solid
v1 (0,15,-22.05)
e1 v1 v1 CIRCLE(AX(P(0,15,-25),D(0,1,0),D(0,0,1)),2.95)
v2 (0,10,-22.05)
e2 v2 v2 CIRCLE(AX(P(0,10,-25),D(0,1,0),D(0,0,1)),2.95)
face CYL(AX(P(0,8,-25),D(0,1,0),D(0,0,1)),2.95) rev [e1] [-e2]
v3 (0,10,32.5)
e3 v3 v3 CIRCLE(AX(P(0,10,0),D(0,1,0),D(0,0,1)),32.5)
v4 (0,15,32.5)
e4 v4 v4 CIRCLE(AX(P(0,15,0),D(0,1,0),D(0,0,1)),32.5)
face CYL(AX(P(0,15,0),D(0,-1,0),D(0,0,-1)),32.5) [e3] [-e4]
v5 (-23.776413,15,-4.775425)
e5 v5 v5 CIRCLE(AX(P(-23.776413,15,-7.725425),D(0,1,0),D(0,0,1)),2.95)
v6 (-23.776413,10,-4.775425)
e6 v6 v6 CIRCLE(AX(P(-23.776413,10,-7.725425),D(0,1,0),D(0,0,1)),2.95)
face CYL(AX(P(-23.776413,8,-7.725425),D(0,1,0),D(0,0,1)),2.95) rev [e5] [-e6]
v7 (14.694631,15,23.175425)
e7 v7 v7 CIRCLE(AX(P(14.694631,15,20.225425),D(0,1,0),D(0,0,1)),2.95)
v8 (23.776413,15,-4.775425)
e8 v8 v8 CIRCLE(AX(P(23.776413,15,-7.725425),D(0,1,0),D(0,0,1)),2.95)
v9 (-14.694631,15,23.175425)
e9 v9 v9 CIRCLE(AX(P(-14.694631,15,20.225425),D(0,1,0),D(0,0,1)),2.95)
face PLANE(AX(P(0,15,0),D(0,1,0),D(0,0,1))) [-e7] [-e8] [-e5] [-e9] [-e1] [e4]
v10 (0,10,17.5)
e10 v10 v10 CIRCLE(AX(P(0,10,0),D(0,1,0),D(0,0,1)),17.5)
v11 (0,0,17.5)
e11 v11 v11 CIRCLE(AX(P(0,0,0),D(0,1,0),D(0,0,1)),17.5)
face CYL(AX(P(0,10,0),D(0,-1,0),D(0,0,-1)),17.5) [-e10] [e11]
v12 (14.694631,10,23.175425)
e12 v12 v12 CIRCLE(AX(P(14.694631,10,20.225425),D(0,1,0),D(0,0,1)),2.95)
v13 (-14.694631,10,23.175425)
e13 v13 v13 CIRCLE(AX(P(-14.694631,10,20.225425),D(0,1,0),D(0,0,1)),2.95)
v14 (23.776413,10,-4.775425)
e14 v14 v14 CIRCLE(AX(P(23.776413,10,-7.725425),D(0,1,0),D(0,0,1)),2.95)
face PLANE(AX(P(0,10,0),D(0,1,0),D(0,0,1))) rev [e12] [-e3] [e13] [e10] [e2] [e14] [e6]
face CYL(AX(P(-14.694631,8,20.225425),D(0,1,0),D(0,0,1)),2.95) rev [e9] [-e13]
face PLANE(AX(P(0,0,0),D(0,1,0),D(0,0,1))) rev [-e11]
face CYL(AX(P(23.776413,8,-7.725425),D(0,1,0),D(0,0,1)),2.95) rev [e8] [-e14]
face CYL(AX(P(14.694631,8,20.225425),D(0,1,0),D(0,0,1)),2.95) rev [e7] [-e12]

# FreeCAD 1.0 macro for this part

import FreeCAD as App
import Part
import Sketcher

V = App.Vector

doc = App.newDocument("Part")
body = doc.addObject("PartDesign::Body", "Body")

# Sketch on XZ plane
sketch1 = body.newObject("Sketcher::SketchObject", "Sketch")
sketch1.AttachmentSupport = (doc.getObject("XZ_Plane"), [""])
sketch1.MapMode = "FlatFace"
sketch1.addGeometry(Part.Circle(V(0, 0, 0), V(0, 0, 1), 18), False)
sketch1.addConstraint([
    Sketcher.Constraint("Coincident", 0, 3, -1, 1),
    Sketcher.Constraint("Diameter", 0, 35.0),
])
pad1 = body.newObject("PartDesign::Pad", "Pad")
pad1.Profile = sketch1
pad1.Length = 10
pad1.Reversed = True

# Sketch on XZ plane
sketch2 = body.newObject("Sketcher::SketchObject", "Sketch001")
sketch2.AttachmentSupport = (doc.getObject("XZ_Plane"), [""])
sketch2.MapMode = "FlatFace"
sketch2.AttachmentOffset = App.Placement(V(0, 0, -10), App.Rotation())
sketch2.addGeometry(Part.Circle(V(0, 0, 0), V(0, 0, 1), 32), False)
sketch2.addConstraint([
    Sketcher.Constraint("Coincident", 0, 3, -1, 1),
    Sketcher.Constraint("Diameter", 0, 65.0),
])
pad2 = body.newObject("PartDesign::Pad", "Pad001")
pad2.Profile = sketch2
pad2.Length = 5
pad2.Reversed = True

# Sketch on XZ plane
sketch3 = body.newObject("Sketcher::SketchObject", "Sketch002")
sketch3.AttachmentSupport = (doc.getObject("XZ_Plane"), [""])
sketch3.MapMode = "FlatFace"
sketch3.AttachmentOffset = App.Placement(V(0, 0, -15), App.Rotation())
sketch3.addGeometry([
    Part.Circle(V(0, -25, 0), V(0, 0, 1), 3),  # 0
    Part.Circle(V(23.8, -7.7, 0), V(0, 0, 1), 3),  # 1
    Part.Circle(V(14.7, 20.2, 0), V(0, 0, 1), 3),  # 2
    Part.Circle(V(-14.7, 20.2, 0), V(0, 0, 1), 3),  # 3
    Part.Circle(V(-23.8, -7.7, 0), V(0, 0, 1), 3),  # 4
], False)
sketch3.addConstraint([
    Sketcher.Constraint("Equal", 0, 1),
    Sketcher.Constraint("Equal", 1, 2),
    Sketcher.Constraint("Equal", 2, 3),
    Sketcher.Constraint("Equal", 3, 4),
    Sketcher.Constraint("Symmetric", 2, 3, 3, 3, -2),
    Sketcher.Constraint("Symmetric", 1, 3, 4, 3, -2),
    Sketcher.Constraint("PointOnObject", 0, 3, -2),
    Sketcher.Constraint("Diameter", 0, 5.9),
    Sketcher.Constraint("DistanceY", 0, 3, -1, 1, 25.0),
    Sketcher.Constraint("DistanceX", -1, 1, 2, 3, 14.694631),
    Sketcher.Constraint("DistanceX", 2, 3, 1, 3, 9.081782),
    Sketcher.Constraint("DistanceY", 1, 3, 2, 3, 27.95085),
    Sketcher.Constraint("DistanceY", 1, 3, -1, 1, 7.725425),
])
pocket1 = body.newObject("PartDesign::Pocket", "Pocket")
pocket1.Profile = sketch3
pocket1.Length = 7
pocket1.Reversed = True

doc.recompute()
